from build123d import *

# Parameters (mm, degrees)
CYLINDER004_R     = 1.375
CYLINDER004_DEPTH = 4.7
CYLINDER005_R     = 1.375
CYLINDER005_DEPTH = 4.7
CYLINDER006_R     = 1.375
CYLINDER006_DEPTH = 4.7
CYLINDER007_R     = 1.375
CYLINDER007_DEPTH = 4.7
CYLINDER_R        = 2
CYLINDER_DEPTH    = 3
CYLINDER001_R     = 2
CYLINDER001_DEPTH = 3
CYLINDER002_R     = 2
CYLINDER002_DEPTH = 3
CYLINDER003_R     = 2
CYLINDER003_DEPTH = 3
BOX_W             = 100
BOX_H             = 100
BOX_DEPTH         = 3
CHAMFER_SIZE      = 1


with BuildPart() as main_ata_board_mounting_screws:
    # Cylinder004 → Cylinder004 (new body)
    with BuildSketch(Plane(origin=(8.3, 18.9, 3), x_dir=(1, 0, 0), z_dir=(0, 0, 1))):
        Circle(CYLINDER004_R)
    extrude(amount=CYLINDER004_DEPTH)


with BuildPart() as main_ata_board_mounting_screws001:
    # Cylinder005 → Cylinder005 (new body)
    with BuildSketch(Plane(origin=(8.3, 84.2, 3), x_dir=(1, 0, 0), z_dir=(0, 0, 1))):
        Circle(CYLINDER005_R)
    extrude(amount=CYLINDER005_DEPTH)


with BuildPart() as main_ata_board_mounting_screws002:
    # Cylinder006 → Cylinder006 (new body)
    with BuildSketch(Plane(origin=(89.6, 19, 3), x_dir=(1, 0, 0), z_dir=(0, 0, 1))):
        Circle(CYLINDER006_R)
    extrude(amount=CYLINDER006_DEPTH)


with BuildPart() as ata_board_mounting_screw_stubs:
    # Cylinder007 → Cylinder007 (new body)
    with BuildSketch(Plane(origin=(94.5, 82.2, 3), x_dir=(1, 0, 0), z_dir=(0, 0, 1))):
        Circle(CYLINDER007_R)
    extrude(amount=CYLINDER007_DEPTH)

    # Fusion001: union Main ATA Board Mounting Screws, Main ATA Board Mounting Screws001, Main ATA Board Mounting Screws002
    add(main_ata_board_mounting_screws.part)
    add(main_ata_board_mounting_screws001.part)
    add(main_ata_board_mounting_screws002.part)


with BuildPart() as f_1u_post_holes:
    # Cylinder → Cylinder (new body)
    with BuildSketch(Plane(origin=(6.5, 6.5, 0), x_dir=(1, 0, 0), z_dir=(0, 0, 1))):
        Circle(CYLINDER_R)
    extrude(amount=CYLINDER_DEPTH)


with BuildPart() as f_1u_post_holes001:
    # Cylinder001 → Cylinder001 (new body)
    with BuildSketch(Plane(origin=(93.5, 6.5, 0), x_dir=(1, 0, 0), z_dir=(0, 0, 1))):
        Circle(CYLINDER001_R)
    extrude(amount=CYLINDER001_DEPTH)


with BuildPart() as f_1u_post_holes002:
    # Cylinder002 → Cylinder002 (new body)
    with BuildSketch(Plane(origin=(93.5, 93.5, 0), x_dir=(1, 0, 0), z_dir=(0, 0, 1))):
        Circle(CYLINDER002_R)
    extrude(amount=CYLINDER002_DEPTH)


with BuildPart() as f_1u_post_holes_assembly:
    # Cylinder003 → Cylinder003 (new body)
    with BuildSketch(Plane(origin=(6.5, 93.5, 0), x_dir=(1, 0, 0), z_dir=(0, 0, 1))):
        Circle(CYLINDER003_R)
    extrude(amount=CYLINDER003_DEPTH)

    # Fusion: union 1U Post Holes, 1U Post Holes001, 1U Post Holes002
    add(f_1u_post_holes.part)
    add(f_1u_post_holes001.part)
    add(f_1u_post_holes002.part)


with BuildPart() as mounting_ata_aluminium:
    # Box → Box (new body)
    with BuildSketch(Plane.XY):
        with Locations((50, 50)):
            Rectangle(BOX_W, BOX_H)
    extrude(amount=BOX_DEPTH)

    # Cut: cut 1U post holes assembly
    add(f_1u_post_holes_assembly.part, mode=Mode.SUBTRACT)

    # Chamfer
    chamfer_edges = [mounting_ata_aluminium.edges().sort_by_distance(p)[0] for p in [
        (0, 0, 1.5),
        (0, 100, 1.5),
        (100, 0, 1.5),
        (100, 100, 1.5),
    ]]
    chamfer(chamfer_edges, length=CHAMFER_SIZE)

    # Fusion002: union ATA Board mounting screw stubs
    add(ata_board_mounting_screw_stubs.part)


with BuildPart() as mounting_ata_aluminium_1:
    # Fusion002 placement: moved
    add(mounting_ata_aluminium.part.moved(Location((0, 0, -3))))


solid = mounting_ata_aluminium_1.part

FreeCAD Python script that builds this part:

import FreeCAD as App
import Part
import Sketcher

V = App.Vector
Q = App.Units.Quantity


def edges_at(feature, points):
    """Names of the edges that pass closest to the given points."""
    edges = feature.Shape.Edges
    near = lambda p: min(range(len(edges)), key=lambda i: edges[i].distToShape(Part.Vertex(*p))[0])
    return sorted({f"Edge{near(p) + 1}" for p in points})

doc = App.newDocument("Part")
params = doc.addObject("Spreadsheet::Sheet", "Params")
for row, (alias, value) in enumerate([
    ("sketch1_diameter", "2.75 mm"),
    ("pad1_length", "4.7 mm"),
    ("sketch2_diameter", "2.75 mm"),
    ("pad2_length", "4.7 mm"),
    ("sketch3_diameter", "2.75 mm"),
    ("pad3_length", "4.7 mm"),
    ("sketch4_diameter", "2.75 mm"),
    ("pad4_length", "4.7 mm"),
    ("sketch5_diameter", "4 mm"),
    ("pad5_length", "3 mm"),
    ("sketch6_diameter", "4 mm"),
    ("pad6_length", "3 mm"),
    ("sketch7_diameter", "4 mm"),
    ("pad7_length", "3 mm"),
    ("sketch8_diameter", "4 mm"),
    ("pad8_length", "3 mm"),
    ("sketch9_width", "100 mm"),
    ("pad9_length", "3 mm"),
    ("chamfer_size", "1 mm"),
], start=1):
    params.set(f"A{row}", alias)
    params.set(f"B{row}", "=" + value)
    params.setAlias(f"B{row}", alias)

body = doc.addObject("PartDesign::Body", "Body")

sketch1 = body.newObject("Sketcher::SketchObject", "Sketch")
sketch1.AttachmentSupport = (doc.getObject("XY_Plane"), [""])
sketch1.MapMode = "FlatFace"
sketch1.AttachmentOffset = App.Placement(V(0, 0, 3), App.Rotation())
sketch1.addGeometry(Part.Circle(V(8.3, 18.9, 0), V(0, 0, 1), 1.4), False)
sketch1.addConstraint([
    Sketcher.Constraint("Diameter", 0, Q("2.75 mm")),
    Sketcher.Constraint("DistanceX", -1, 1, 0, 3, Q("8.3 mm")),
    Sketcher.Constraint("DistanceY", -1, 1, 0, 3, Q("18.9 mm")),
])
sketch1.setExpression("Constraints[0]", "Params.sketch1_diameter")
pad1 = body.newObject("PartDesign::Pad", "Pad")
pad1.Profile = sketch1
pad1.setExpression("Length", "Params.pad1_length")
body2 = doc.addObject("PartDesign::Body", "Body001")

sketch2 = body2.newObject("Sketcher::SketchObject", "Sketch001")
sketch2.AttachmentSupport = (doc.getObject("XY_Plane001"), [""])
sketch2.MapMode = "FlatFace"
sketch2.AttachmentOffset = App.Placement(V(0, 0, 3), App.Rotation())
sketch2.addGeometry(Part.Circle(V(8.3, 84.2, 0), V(0, 0, 1), 1.4), False)
sketch2.addConstraint([
    Sketcher.Constraint("Diameter", 0, Q("2.75 mm")),
    Sketcher.Constraint("DistanceX", -1, 1, 0, 3, Q("8.3 mm")),
    Sketcher.Constraint("DistanceY", -1, 1, 0, 3, Q("84.2 mm")),
])
sketch2.setExpression("Constraints[0]", "Params.sketch2_diameter")
pad2 = body2.newObject("PartDesign::Pad", "Pad001")
pad2.Profile = sketch2
pad2.setExpression("Length", "Params.pad2_length")
body3 = doc.addObject("PartDesign::Body", "Body002")

sketch3 = body3.newObject("Sketcher::SketchObject", "Sketch002")
sketch3.AttachmentSupport = (doc.getObject("XY_Plane002"), [""])
sketch3.MapMode = "FlatFace"
sketch3.AttachmentOffset = App.Placement(V(0, 0, 3), App.Rotation())
sketch3.addGeometry(Part.Circle(V(89.6, 19, 0), V(0, 0, 1), 1.4), False)
sketch3.addConstraint([
    Sketcher.Constraint("Diameter", 0, Q("2.75 mm")),
    Sketcher.Constraint("DistanceY", -1, 1, 0, 3, Q("19 mm")),
    Sketcher.Constraint("DistanceX", -1, 1, 0, 3, Q("89.6 mm")),
])
sketch3.setExpression("Constraints[0]", "Params.sketch3_diameter")
pad3 = body3.newObject("PartDesign::Pad", "Pad002")
pad3.Profile = sketch3
pad3.setExpression("Length", "Params.pad3_length")
body4 = doc.addObject("PartDesign::Body", "Body003")
body4.AllowCompound = True

sketch4 = body4.newObject("Sketcher::SketchObject", "Sketch003")
sketch4.AttachmentSupport = (doc.getObject("XY_Plane003"), [""])
sketch4.MapMode = "FlatFace"
sketch4.AttachmentOffset = App.Placement(V(0, 0, 3), App.Rotation())
sketch4.addGeometry(Part.Circle(V(94.5, 82.2, 0), V(0, 0, 1), 1.4), False)
sketch4.addConstraint([
    Sketcher.Constraint("Diameter", 0, Q("2.75 mm")),
    Sketcher.Constraint("DistanceX", -1, 1, 0, 3, Q("94.5 mm")),
    Sketcher.Constraint("DistanceY", -1, 1, 0, 3, Q("82.2 mm")),
])
sketch4.setExpression("Constraints[0]", "Params.sketch4_diameter")
pad4 = body4.newObject("PartDesign::Pad", "Pad003")
pad4.Profile = sketch4
pad4.setExpression("Length", "Params.pad4_length")
doc.recompute()

boolean = body4.newObject("PartDesign::Boolean", "Boolean")
boolean.Type = "Fuse"
boolean.addObjects([body])
doc.recompute()

boolean2 = body4.newObject("PartDesign::Boolean", "Boolean001")
boolean2.Type = "Fuse"
boolean2.addObjects([body2])
doc.recompute()

boolean3 = body4.newObject("PartDesign::Boolean", "Boolean002")
boolean3.Type = "Fuse"
boolean3.addObjects([body3])
body5 = doc.addObject("PartDesign::Body", "Body004")

sketch5 = body5.newObject("Sketcher::SketchObject", "Sketch004")
sketch5.AttachmentSupport = (doc.getObject("XY_Plane004"), [""])
sketch5.MapMode = "FlatFace"
sketch5.addGeometry(Part.Circle(V(6.5, 6.5, 0), V(0, 0, 1), 2), False)
sketch5.addConstraint([
    Sketcher.Constraint("Diameter", 0, Q("4 mm")),
    Sketcher.Constraint("DistanceX", -1, 1, 0, 3, Q("6.5 mm")),
    Sketcher.Constraint("DistanceY", -1, 1, 0, 3, Q("6.5 mm")),
])
sketch5.setExpression("Constraints[0]", "Params.sketch5_diameter")
pad5 = body5.newObject("PartDesign::Pad", "Pad004")
pad5.Profile = sketch5
pad5.setExpression("Length", "Params.pad5_length")
body6 = doc.addObject("PartDesign::Body", "Body005")

sketch6 = body6.newObject("Sketcher::SketchObject", "Sketch005")
sketch6.AttachmentSupport = (doc.getObject("XY_Plane005"), [""])
sketch6.MapMode = "FlatFace"
sketch6.addGeometry(Part.Circle(V(93.5, 6.5, 0), V(0, 0, 1), 2), False)
sketch6.addConstraint([
    Sketcher.Constraint("Diameter", 0, Q("4 mm")),
    Sketcher.Constraint("DistanceX", -1, 1, 0, 3, Q("93.5 mm")),
    Sketcher.Constraint("DistanceY", -1, 1, 0, 3, Q("6.5 mm")),
])
sketch6.setExpression("Constraints[0]", "Params.sketch6_diameter")
pad6 = body6.newObject("PartDesign::Pad", "Pad005")
pad6.Profile = sketch6
pad6.setExpression("Length", "Params.pad6_length")
body7 = doc.addObject("PartDesign::Body", "Body006")

sketch7 = body7.newObject("Sketcher::SketchObject", "Sketch006")
sketch7.AttachmentSupport = (doc.getObject("XY_Plane006"), [""])
sketch7.MapMode = "FlatFace"
sketch7.addGeometry(Part.Circle(V(93.5, 93.5, 0), V(0, 0, 1), 2), False)
sketch7.addConstraint([
    Sketcher.Constraint("Diameter", 0, Q("4 mm")),
    Sketcher.Constraint("DistanceX", -1, 1, 0, 3, Q("93.5 mm")),
    Sketcher.Constraint("DistanceY", -1, 1, 0, 3, Q("93.5 mm")),
])
sketch7.setExpression("Constraints[0]", "Params.sketch7_diameter")
pad7 = body7.newObject("PartDesign::Pad", "Pad006")
pad7.Profile = sketch7
pad7.setExpression("Length", "Params.pad7_length")
body8 = doc.addObject("PartDesign::Body", "Body007")
body8.AllowCompound = True

sketch8 = body8.newObject("Sketcher::SketchObject", "Sketch007")
sketch8.AttachmentSupport = (doc.getObject("XY_Plane007"), [""])
sketch8.MapMode = "FlatFace"
sketch8.addGeometry(Part.Circle(V(6.5, 93.5, 0), V(0, 0, 1), 2), False)
sketch8.addConstraint([
    Sketcher.Constraint("Diameter", 0, Q("4 mm")),
    Sketcher.Constraint("DistanceX", -1, 1, 0, 3, Q("6.5 mm")),
    Sketcher.Constraint("DistanceY", -1, 1, 0, 3, Q("93.5 mm")),
])
sketch8.setExpression("Constraints[0]", "Params.sketch8_diameter")
pad8 = body8.newObject("PartDesign::Pad", "Pad007")
pad8.Profile = sketch8
pad8.setExpression("Length", "Params.pad8_length")
doc.recompute()

boolean4 = body8.newObject("PartDesign::Boolean", "Boolean003")
boolean4.Type = "Fuse"
boolean4.addObjects([body5])
doc.recompute()

boolean5 = body8.newObject("PartDesign::Boolean", "Boolean004")
boolean5.Type = "Fuse"
boolean5.addObjects([body6])
doc.recompute()

boolean6 = body8.newObject("PartDesign::Boolean", "Boolean005")
boolean6.Type = "Fuse"
boolean6.addObjects([body7])
body9 = doc.addObject("PartDesign::Body", "Body008")

sketch9 = body9.newObject("Sketcher::SketchObject", "Sketch008")
sketch9.AttachmentSupport = (doc.getObject("XY_Plane008"), [""])
sketch9.MapMode = "FlatFace"
sketch9.addGeometry([
    Part.LineSegment(V(0, 100, 0), V(0, 0, 0)),
    Part.LineSegment(V(0, 0, 0), V(100, 0, 0)),
    Part.LineSegment(V(100, 0, 0), V(100, 100, 0)),
    Part.LineSegment(V(100, 100, 0), V(0, 100, 0)),
], False)
sketch9.addConstraint([
    Sketcher.Constraint("Coincident", 0, 2, 1, 1),
    Sketcher.Constraint("Coincident", 1, 2, 2, 1),
    Sketcher.Constraint("Coincident", 2, 2, 3, 1),
    Sketcher.Constraint("Coincident", 3, 2, 0, 1),
    Sketcher.Constraint("Vertical", 0),
    Sketcher.Constraint("Horizontal", 1),
    Sketcher.Constraint("Vertical", 2),
    Sketcher.Constraint("Horizontal", 3),
    Sketcher.Constraint("Coincident", 0, 2, -1, 1),
    Sketcher.Constraint("Equal", 3, 0),
    Sketcher.Constraint("DistanceX", 1, 1, 1, 2, Q("100 mm")),
])
sketch9.setExpression("Constraints[10]", "Params.sketch9_width")
pad9 = body9.newObject("PartDesign::Pad", "Pad008")
pad9.Profile = sketch9
pad9.setExpression("Length", "Params.pad9_length")
doc.recompute()

boolean7 = body9.newObject("PartDesign::Boolean", "Boolean006")
boolean7.Type = "Cut"
boolean7.addObjects([body8])
doc.recompute()

chamfer = body9.newObject("PartDesign::Chamfer", "Chamfer")
chamfer.Base = (boolean7, edges_at(boolean7, [
    (0, 0, 1.5),
    (0, 100, 1.5),
    (100, 0, 1.5),
    (100, 100, 1.5),
]))
chamfer.setExpression("Size", "Params.chamfer_size")
doc.recompute()

boolean8 = body9.newObject("PartDesign::Boolean", "Boolean007")
boolean8.Type = "Fuse"
boolean8.addObjects([body4])
body10 = doc.addObject("PartDesign::Body", "Body009")
doc.recompute()

body9.Placement = App.Placement(V(0, 0, -3), App.Rotation(V(0, 0, 1), 0))
boolean9 = body10.newObject("PartDesign::Boolean", "Boolean008")
boolean9.Type = "Fuse"
boolean9.addObjects([body9])

doc.recompute()
